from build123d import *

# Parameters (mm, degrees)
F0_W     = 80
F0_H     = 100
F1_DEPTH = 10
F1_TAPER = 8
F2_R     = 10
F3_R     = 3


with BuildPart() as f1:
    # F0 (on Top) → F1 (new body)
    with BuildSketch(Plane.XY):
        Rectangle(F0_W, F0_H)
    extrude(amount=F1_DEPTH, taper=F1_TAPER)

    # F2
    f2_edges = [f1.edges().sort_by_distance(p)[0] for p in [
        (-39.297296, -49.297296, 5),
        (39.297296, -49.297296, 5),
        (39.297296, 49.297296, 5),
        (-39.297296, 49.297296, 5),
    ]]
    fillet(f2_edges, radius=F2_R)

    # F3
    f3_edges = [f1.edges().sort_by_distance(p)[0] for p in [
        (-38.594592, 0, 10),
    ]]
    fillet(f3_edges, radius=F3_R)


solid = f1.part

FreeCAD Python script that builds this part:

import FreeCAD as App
import Part
import Sketcher
from FreeCAD import Vector
Q = App.Units.Quantity


def edges_at(feature, points):
    """Names of the edges that pass closest to the given points."""
    edges = feature.Shape.Edges
    near = lambda p: min(range(len(edges)), key=lambda i: edges[i].distToShape(Part.Vertex(*p))[0])
    return sorted({f"Edge{near(p) + 1}" for p in points})

doc = App.newDocument("Part")
body = doc.addObject("PartDesign::Body", "Body")

sketch1 = body.newObject("Sketcher::SketchObject", "Sketch")
sketch1.AttachmentSupport = (doc.getObject("XY_Plane"), [""])
sketch1.MapMode = "FlatFace"
sketch1.addGeometry([
    Part.LineSegment(Vector(-40, 50, 0), Vector(-40, -50, 0)),
    Part.LineSegment(Vector(-40, -50, 0), Vector(40, -50, 0)),
    Part.LineSegment(Vector(40, -50, 0), Vector(40, 50, 0)),
    Part.LineSegment(Vector(40, 50, 0), Vector(-40, 50, 0)),
], False)
sketch1.addConstraint([
    Sketcher.Constraint("Coincident", 0, 2, 1, 1),
    Sketcher.Constraint("Coincident", 1, 2, 2, 1),
    Sketcher.Constraint("Coincident", 2, 2, 3, 1),
    Sketcher.Constraint("Coincident", 3, 2, 0, 1),
    Sketcher.Constraint("Vertical", 0),
    Sketcher.Constraint("Horizontal", 1),
    Sketcher.Constraint("Vertical", 2),
    Sketcher.Constraint("Horizontal", 3),
    Sketcher.Constraint("Symmetric", 0, 2, 2, 2, -1, 1),
    Sketcher.Constraint("DistanceX", 1, 1, 1, 2, Q("80 mm")),
    Sketcher.Constraint("DistanceY", 0, 2, 0, 1, Q("100 mm")),
])
pad1 = body.newObject("PartDesign::Pad", "Pad")
pad1.Profile = sketch1
pad1.Length = 10
pad1.TaperAngle = -8
doc.recompute()

fillet = body.newObject("PartDesign::Fillet", "Fillet")
fillet.Base = (pad1, edges_at(pad1, [
    (-39.297, -49.297, 5),
    (39.297, -49.297, 5),
    (39.297, 49.297, 5),
    (-39.297, 49.297, 5),
]))
fillet.Radius = 10
doc.recompute()

fillet2 = body.newObject("PartDesign::Fillet", "Fillet001")
fillet2.Base = (fillet, edges_at(fillet, [(-38.595, 0, 10)]))
fillet2.Radius = 3

doc.recompute()
